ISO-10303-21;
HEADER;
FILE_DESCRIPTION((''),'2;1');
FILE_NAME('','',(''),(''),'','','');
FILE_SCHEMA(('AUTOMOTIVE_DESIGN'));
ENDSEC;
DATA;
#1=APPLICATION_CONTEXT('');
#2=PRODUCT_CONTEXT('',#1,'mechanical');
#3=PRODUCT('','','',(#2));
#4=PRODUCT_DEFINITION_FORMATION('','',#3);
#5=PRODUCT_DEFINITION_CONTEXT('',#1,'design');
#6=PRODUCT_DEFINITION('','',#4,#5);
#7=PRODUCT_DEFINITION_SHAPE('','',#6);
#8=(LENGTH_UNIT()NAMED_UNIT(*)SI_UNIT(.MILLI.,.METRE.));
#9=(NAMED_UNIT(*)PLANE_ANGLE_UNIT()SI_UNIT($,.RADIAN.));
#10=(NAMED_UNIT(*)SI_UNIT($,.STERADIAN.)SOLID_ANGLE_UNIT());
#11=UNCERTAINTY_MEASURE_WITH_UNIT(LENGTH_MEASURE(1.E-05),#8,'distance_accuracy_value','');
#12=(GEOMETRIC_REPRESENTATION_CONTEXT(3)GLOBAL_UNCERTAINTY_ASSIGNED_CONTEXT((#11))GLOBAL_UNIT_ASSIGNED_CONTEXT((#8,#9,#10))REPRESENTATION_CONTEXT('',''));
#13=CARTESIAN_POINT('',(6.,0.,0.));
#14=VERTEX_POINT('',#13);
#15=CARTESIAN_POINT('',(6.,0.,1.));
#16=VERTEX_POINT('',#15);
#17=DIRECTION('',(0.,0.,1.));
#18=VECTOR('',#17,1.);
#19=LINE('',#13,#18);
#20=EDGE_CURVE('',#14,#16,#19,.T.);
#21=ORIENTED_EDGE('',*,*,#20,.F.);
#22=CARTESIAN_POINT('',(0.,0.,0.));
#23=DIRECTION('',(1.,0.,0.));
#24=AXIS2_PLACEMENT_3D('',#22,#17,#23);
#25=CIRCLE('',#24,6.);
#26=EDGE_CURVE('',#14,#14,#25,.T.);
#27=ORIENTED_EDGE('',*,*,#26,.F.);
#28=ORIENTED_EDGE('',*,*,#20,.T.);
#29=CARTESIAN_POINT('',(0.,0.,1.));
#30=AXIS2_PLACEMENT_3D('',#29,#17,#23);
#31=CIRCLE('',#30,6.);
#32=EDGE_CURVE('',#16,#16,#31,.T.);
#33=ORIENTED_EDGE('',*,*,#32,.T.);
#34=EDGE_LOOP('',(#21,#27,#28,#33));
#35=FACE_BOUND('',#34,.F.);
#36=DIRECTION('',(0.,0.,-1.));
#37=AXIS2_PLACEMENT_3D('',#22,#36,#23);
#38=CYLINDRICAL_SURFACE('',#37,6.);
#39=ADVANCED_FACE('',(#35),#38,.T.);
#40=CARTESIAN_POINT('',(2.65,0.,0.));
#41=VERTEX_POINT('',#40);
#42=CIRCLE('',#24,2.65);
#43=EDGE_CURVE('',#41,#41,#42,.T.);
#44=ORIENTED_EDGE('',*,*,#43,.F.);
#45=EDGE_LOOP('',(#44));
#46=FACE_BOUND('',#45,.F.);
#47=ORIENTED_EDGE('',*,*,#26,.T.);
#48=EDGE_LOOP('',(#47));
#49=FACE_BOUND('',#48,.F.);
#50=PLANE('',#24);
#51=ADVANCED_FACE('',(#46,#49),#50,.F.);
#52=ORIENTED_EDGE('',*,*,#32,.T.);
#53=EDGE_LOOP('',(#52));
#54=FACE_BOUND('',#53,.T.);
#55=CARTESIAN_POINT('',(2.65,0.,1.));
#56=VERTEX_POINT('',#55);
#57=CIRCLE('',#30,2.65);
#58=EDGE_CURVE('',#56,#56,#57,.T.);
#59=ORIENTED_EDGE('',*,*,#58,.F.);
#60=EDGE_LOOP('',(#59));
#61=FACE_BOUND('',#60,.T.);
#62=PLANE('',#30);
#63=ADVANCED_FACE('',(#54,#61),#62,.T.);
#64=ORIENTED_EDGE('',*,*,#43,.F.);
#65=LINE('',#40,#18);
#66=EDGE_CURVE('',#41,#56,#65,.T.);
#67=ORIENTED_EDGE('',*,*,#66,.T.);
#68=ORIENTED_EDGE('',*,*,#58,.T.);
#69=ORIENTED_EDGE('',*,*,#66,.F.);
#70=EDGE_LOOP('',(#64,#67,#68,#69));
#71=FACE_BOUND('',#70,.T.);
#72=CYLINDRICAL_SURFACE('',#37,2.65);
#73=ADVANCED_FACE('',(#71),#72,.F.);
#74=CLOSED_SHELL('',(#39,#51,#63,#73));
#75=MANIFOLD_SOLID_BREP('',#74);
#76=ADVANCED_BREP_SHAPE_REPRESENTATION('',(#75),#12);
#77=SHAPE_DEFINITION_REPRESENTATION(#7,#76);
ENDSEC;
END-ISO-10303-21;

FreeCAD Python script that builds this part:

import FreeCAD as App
import Part
import Sketcher
from FreeCAD import Vector
Q = App.Units.Quantity

doc = App.newDocument("Part")
body = doc.addObject("PartDesign::Body", "Body")

# Sketch on XY plane
sketch1 = body.newObject("Sketcher::SketchObject", "Sketch")
sketch1.AttachmentSupport = (doc.getObject("XY_Plane"), [""])
sketch1.MapMode = "FlatFace"
sketch1.addGeometry([
    Part.Circle(Vector(0, 0, 0), Vector(0, 0, 1), 6),
    Part.Circle(Vector(0, 0, 0), Vector(0, 0, 1), 2.6),
], False)
sketch1.addConstraint([
    Sketcher.Constraint("Coincident", 0, 3, -1, 1),
    Sketcher.Constraint("Coincident", 1, 3, -1, 1),
    Sketcher.Constraint("Diameter", 0, Q("12 mm")),
    Sketcher.Constraint("Diameter", 1, Q("5.3 mm")),
])
pad1 = body.newObject("PartDesign::Pad", "Pad")
pad1.Profile = sketch1
pad1.Length = 1

doc.recompute()
